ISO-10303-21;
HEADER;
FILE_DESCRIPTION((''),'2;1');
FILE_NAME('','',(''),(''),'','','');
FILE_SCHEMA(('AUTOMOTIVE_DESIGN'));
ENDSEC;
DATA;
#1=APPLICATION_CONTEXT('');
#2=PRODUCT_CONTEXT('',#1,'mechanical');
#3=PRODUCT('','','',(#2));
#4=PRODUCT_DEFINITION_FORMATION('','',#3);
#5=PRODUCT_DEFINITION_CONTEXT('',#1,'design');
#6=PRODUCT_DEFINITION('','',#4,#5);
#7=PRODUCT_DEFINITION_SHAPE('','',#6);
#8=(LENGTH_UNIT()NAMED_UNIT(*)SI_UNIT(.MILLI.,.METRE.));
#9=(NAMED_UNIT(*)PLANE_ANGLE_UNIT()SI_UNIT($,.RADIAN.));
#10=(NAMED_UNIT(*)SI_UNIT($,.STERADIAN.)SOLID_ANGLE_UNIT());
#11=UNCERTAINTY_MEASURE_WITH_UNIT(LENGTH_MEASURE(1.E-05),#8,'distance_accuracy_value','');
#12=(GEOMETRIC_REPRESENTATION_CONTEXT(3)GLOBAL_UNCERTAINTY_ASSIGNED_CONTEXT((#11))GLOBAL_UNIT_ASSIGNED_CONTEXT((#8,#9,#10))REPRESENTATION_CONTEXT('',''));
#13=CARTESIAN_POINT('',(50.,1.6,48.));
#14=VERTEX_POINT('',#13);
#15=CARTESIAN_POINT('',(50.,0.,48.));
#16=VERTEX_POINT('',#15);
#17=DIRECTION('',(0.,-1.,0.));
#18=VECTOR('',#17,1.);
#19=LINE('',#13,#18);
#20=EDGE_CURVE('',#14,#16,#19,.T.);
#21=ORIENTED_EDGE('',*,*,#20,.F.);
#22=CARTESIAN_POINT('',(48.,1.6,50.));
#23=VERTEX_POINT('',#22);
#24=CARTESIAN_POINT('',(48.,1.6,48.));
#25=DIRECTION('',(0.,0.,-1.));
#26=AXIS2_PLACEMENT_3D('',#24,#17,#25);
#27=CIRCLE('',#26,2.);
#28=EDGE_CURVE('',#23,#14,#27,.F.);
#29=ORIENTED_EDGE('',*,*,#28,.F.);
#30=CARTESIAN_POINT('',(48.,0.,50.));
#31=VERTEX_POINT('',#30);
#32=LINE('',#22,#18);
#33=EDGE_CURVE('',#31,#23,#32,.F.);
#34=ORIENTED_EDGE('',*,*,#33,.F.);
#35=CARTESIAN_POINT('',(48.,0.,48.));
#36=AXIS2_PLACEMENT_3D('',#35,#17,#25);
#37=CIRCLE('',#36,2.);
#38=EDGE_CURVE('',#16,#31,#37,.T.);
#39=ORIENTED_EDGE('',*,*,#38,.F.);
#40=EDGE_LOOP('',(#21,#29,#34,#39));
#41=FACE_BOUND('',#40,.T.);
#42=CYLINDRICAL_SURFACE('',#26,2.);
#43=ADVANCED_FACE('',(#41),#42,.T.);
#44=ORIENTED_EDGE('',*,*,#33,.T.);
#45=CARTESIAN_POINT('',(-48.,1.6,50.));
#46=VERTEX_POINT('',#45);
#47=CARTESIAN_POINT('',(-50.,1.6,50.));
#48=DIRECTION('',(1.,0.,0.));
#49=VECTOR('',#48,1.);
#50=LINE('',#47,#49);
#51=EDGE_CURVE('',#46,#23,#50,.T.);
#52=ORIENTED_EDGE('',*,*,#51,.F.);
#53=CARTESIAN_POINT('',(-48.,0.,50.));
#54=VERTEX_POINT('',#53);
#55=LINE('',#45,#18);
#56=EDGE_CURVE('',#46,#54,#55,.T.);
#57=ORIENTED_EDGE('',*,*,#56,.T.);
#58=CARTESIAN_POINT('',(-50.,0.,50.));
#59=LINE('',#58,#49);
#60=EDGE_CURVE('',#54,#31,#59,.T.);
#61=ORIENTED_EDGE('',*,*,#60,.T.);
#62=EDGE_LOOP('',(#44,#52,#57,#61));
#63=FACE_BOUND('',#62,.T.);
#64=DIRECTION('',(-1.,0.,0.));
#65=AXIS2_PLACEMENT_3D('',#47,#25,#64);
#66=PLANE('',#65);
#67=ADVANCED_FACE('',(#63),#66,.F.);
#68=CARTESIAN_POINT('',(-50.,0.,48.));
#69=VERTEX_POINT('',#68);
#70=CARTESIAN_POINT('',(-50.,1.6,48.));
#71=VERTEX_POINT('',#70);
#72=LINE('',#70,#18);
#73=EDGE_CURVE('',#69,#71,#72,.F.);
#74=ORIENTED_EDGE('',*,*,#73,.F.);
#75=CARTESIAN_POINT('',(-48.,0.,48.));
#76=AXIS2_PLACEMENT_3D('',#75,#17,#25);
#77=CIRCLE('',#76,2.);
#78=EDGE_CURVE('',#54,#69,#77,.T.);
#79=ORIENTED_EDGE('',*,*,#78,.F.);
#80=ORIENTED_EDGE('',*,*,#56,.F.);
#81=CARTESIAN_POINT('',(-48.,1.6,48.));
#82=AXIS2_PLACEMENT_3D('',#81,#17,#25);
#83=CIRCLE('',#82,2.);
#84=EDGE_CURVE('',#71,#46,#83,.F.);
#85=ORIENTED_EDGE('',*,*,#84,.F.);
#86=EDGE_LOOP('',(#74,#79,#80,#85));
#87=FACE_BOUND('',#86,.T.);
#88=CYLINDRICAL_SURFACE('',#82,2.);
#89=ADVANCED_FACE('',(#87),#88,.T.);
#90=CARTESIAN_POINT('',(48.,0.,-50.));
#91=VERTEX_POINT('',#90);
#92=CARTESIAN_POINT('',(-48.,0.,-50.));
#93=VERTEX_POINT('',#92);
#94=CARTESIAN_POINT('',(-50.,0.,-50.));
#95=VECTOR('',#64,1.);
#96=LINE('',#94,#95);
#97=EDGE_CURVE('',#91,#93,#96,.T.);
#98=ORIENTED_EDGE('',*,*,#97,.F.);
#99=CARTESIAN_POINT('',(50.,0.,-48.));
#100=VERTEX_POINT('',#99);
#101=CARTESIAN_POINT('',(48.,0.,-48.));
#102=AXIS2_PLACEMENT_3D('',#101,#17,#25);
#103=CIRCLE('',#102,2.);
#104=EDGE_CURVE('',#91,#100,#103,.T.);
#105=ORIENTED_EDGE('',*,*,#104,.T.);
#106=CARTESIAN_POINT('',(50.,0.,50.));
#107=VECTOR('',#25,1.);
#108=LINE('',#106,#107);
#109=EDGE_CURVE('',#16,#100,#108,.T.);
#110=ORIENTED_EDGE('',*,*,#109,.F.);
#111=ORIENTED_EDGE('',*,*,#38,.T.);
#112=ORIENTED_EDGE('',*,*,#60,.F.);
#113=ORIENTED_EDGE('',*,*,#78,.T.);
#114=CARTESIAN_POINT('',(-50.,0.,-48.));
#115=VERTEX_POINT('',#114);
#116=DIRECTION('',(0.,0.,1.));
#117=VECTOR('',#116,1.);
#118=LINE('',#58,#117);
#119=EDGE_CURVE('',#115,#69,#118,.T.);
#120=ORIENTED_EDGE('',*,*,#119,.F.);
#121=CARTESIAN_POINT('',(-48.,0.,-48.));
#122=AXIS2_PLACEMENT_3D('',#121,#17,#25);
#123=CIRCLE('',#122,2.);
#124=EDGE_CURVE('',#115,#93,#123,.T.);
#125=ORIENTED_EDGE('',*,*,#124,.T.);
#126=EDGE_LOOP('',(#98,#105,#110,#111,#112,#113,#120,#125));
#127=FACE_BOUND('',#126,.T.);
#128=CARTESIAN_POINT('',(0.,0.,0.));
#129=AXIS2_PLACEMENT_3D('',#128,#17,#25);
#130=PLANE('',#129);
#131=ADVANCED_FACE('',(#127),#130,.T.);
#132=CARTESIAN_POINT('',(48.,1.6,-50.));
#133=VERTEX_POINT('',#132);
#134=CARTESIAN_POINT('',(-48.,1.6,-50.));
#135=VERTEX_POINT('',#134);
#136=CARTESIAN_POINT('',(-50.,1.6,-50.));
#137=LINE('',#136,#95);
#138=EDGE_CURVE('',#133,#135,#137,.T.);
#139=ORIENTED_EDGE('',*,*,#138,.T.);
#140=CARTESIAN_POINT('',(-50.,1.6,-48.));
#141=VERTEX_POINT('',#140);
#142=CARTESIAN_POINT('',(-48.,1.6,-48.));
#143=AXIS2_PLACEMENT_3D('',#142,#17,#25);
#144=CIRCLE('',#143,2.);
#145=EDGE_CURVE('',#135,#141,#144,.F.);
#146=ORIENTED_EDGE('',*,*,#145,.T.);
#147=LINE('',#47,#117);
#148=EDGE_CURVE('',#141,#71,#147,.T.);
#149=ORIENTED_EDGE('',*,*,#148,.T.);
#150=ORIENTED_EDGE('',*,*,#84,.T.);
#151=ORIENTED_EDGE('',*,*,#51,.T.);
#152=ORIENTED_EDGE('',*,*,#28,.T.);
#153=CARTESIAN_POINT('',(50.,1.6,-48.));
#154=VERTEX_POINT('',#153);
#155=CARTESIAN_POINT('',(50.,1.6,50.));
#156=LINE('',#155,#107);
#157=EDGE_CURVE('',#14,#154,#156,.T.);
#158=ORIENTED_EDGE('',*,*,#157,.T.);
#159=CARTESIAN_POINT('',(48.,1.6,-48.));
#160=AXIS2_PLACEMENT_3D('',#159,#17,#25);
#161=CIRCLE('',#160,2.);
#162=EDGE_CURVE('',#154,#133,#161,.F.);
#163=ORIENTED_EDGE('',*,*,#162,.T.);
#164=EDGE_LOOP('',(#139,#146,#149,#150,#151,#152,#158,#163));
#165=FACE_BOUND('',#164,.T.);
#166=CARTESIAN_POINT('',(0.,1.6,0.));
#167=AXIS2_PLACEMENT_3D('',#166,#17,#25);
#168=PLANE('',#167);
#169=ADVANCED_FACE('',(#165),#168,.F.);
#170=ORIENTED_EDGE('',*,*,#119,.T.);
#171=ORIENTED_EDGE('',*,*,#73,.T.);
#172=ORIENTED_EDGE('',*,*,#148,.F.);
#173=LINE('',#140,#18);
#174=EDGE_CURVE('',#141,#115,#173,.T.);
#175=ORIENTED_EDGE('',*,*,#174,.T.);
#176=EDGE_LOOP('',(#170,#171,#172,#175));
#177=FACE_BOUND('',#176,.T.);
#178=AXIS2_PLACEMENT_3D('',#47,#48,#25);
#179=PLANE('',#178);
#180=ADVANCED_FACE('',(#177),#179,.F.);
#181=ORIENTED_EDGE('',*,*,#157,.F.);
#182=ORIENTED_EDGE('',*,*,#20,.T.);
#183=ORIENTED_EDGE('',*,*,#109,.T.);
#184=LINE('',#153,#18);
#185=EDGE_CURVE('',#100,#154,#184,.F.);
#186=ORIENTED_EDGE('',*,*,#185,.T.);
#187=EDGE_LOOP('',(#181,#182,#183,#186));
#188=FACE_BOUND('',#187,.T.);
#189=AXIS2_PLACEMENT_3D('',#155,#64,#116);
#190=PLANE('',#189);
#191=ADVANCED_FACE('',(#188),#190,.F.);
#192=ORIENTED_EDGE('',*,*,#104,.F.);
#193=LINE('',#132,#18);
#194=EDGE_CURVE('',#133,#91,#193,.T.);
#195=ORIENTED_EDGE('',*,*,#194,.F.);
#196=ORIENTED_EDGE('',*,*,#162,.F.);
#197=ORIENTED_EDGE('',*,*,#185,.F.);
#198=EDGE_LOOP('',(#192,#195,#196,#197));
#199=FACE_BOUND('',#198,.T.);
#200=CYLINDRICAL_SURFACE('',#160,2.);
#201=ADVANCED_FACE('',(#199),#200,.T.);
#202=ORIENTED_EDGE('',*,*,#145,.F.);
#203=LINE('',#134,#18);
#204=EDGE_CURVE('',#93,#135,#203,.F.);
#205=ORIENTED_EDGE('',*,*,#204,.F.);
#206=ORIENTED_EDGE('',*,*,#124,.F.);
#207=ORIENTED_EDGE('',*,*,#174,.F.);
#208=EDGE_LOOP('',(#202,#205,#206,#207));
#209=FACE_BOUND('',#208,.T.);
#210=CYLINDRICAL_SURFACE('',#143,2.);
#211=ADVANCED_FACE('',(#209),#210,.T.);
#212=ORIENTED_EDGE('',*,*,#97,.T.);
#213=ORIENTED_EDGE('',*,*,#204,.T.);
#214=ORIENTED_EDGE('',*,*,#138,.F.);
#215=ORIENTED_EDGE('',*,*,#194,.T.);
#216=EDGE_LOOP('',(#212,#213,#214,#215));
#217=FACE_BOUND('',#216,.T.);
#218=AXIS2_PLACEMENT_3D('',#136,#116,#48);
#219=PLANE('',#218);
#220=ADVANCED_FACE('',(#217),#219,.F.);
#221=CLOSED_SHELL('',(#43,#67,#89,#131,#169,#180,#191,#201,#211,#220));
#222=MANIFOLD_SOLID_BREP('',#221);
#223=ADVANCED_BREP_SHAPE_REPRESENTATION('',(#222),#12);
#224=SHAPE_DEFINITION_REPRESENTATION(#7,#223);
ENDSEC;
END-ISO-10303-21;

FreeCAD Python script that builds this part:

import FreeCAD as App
import Part
import Sketcher

V = App.Vector
Q = App.Units.Quantity


def edges_at(feature, points):
    """Names of the edges that pass closest to the given points."""
    edges = feature.Shape.Edges
    near = lambda p: min(range(len(edges)), key=lambda i: edges[i].distToShape(Part.Vertex(*p))[0])
    return sorted({f"Edge{near(p) + 1}" for p in points})

doc = App.newDocument("Part")
params = doc.addObject("Spreadsheet::Sheet", "Params")
for row, (alias, value) in enumerate([
    ("sketch1_width", "100 mm"),
    ("pad1_length", "1.6 mm"),
    ("fillet_radius", "2 mm"),
], start=1):
    params.set(f"A{row}", alias)
    params.set(f"B{row}", "=" + value)
    params.setAlias(f"B{row}", alias)

body = doc.addObject("PartDesign::Body", "Body")

# Sketch on XZ plane
sketch1 = body.newObject("Sketcher::SketchObject", "Sketch")
sketch1.AttachmentSupport = (doc.getObject("XZ_Plane"), [""])
sketch1.MapMode = "FlatFace"
sketch1.addGeometry([
    Part.LineSegment(V(-50, -50, 0), V(-50, 50, 0)),
    Part.LineSegment(V(-50, 50, 0), V(50, 50, 0)),
    Part.LineSegment(V(50, 50, 0), V(50, -50, 0)),
    Part.LineSegment(V(50, -50, 0), V(-50, -50, 0)),
], False)
sketch1.addConstraint([
    Sketcher.Constraint("Coincident", 0, 2, 1, 1),
    Sketcher.Constraint("Coincident", 1, 2, 2, 1),
    Sketcher.Constraint("Coincident", 2, 2, 3, 1),
    Sketcher.Constraint("Coincident", 3, 2, 0, 1),
    Sketcher.Constraint("Vertical", 0),
    Sketcher.Constraint("Horizontal", 1),
    Sketcher.Constraint("Vertical", 2),
    Sketcher.Constraint("Horizontal", 3),
    Sketcher.Constraint("Symmetric", 0, 2, 2, 2, -1, 1),
    Sketcher.Constraint("Equal", 3, 0),
    Sketcher.Constraint("DistanceX", 1, 1, 1, 2, Q("100 mm")),
])
sketch1.setExpression("Constraints[10]", "Params.sketch1_width")
pad1 = body.newObject("PartDesign::Pad", "Pad")
pad1.Profile = sketch1
pad1.setExpression("Length", "Params.pad1_length")
pad1.Reversed = True
doc.recompute()

fillet = body.newObject("PartDesign::Fillet", "Fillet")
fillet.Base = (pad1, edges_at(pad1, [
    (50, 0.8, 50),
    (-50, 0.8, 50),
    (-50, 0.8, -50),
    (50, 0.8, -50),
]))
fillet.setExpression("Radius", "Params.fillet_radius")

doc.recompute()
